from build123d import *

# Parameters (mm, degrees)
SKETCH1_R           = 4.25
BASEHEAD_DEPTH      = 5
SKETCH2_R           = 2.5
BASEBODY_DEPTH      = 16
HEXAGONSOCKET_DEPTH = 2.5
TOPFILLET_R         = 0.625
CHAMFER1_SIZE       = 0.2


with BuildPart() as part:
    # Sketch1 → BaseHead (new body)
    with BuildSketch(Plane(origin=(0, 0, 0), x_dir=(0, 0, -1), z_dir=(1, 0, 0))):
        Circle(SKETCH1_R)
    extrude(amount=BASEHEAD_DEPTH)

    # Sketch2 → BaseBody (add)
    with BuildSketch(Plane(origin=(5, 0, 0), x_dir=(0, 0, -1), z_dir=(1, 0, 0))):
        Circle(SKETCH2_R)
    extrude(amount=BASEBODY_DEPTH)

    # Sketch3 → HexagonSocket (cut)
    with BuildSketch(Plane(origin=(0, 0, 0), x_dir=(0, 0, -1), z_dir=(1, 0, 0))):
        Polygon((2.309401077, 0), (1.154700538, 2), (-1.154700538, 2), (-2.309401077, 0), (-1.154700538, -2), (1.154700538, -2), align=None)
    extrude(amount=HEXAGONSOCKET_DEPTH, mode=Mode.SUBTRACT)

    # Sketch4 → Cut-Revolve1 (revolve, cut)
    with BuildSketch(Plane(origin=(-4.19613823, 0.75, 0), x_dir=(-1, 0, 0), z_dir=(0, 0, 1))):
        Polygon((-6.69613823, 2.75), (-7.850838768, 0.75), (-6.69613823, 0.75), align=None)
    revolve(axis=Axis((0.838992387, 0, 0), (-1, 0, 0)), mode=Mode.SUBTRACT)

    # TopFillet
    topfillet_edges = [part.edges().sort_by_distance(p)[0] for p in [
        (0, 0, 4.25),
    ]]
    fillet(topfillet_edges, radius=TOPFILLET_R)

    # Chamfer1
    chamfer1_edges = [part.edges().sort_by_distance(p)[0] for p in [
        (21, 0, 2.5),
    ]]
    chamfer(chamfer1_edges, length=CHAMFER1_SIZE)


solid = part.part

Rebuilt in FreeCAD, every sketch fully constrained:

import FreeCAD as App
import Part
import Sketcher
from FreeCAD import Vector
Q = App.Units.Quantity


def edges_at(feature, points):
    """Names of the edges that pass closest to the given points."""
    edges = feature.Shape.Edges
    near = lambda p: min(range(len(edges)), key=lambda i: edges[i].distToShape(Part.Vertex(*p))[0])
    return sorted({f"Edge{near(p) + 1}" for p in points})


def add_polygon(sketch, points):
    """Adds a closed chain of lines whose ends are joined by coincident constraints."""
    first, n = sketch.GeometryCount, len(points)
    for a, b in zip(points, points[1:] + points[:1]):
        sketch.addGeometry(Part.LineSegment(App.Vector(*a, 0), App.Vector(*b, 0)), False)
    for i in range(n):
        sketch.addConstraint(Sketcher.Constraint("Coincident", first + i, 2, first + (i + 1) % n, 1))

doc = App.newDocument("Part")
body = doc.addObject("PartDesign::Body", "Body")

sketch1 = doc.addObject("Sketcher::SketchObject", "Sketch")
body.addObject(sketch1)
sketch1.AttachmentSupport = (doc.YZ_Plane, [""])
sketch1.MapMode = "FlatFace"
sketch1.addGeometry(Part.Circle(Vector(0, 0, 0), Vector(0, 0, 1), 4.2), False)
sketch1.addConstraint([
    Sketcher.Constraint("Coincident", 0, 3, -1, 1),
    Sketcher.Constraint("Diameter", 0, 8.5),
])
pad1 = doc.addObject("PartDesign::Pad", "Pad")
body.addObject(pad1)
pad1.Profile = sketch1
pad1.Length = 5

sketch2 = doc.addObject("Sketcher::SketchObject", "Sketch001")
body.addObject(sketch2)
sketch2.AttachmentSupport = (doc.YZ_Plane, [""])
sketch2.MapMode = "FlatFace"
sketch2.AttachmentOffset = App.Placement(Vector(0, 0, 5), App.Rotation())
sketch2.addGeometry(Part.Circle(Vector(0, 0, 0), Vector(0, 0, 1), 2.5), False)
sketch2.addConstraint([
    Sketcher.Constraint("Coincident", 0, 3, -1, 1),
    Sketcher.Constraint("Diameter", 0, 5.0),
])
pad2 = doc.addObject("PartDesign::Pad", "Pad001")
body.addObject(pad2)
pad2.Profile = sketch2
pad2.Length = 16

sketch3 = doc.addObject("Sketcher::SketchObject", "Sketch002")
body.addObject(sketch3)
sketch3.AttachmentSupport = (doc.YZ_Plane, [""])
sketch3.MapMode = "FlatFace"
add_polygon(sketch3, [(0, -2.3), (2, -1.2), (2, 1.2), (0, 2.3), (-2, 1.2), (-2, -1.2)])
sketch3.addConstraint([
    Sketcher.Constraint("Vertical", 1),
    Sketcher.Constraint("Vertical", 4),
    Sketcher.Constraint("Symmetric", 0, 2, 3, 2, -1, 1),
    Sketcher.Constraint("Symmetric", 2, 2, 5, 2, -1, 1),
    Sketcher.Constraint("PointOnObject", 2, 2, -2),
    Sketcher.Constraint("Parallel", 2, 5),
    Sketcher.Constraint("Horizontal", 1, 2, 3, 2),
    Sketcher.Constraint("Angle", 0, Q("30 deg")),
    Sketcher.Constraint("DistanceX", -1, 1, 0, 2, 2.0),
    Sketcher.Constraint("DistanceY", 1, 1, 1, 2, 2.309401),
])
pocket1 = doc.addObject("PartDesign::Pocket", "Pocket")
body.addObject(pocket1)
pocket1.Profile = sketch3
pocket1.Length = 2.5
pocket1.Reversed = True

sketch4 = doc.addObject("Sketcher::SketchObject", "Sketch003")
body.addObject(sketch4)
sketch4.AttachmentSupport = (doc.XY_Plane, [""])
sketch4.MapMode = "FlatFace"
add_polygon(sketch4, [(2.5, -2), (3.7, 0), (2.5, 0)])
sketch4.addConstraint([
    Sketcher.Constraint("Horizontal", 1),
    Sketcher.Constraint("Vertical", 2),
    Sketcher.Constraint("PointOnObject", 0, 2, -1),
    Sketcher.Constraint("DistanceY", 2, 2, 2, 1, 2.0),
    Sketcher.Constraint("Angle", 0, Q("60 deg")),
    Sketcher.Constraint("DistanceX", -1, 1, 1, 2, 2.5),
])
groove = doc.addObject("PartDesign::Groove", "Groove")
body.addObject(groove)
groove.Profile = sketch4
groove.ReferenceAxis = (sketch4, ["H_Axis"])
groove.Angle = 360
doc.recompute()

fillet = doc.addObject("PartDesign::Fillet", "Fillet")
body.addObject(fillet)
fillet.Base = (groove, edges_at(groove, [(0, 0, 4.25)]))
fillet.Radius = 0.625
doc.recompute()

chamfer = doc.addObject("PartDesign::Chamfer", "Chamfer")
body.addObject(chamfer)
chamfer.Base = (fillet, edges_at(fillet, [(21, 0, 2.5)]))
chamfer.Size = 0.2

doc.recompute()
